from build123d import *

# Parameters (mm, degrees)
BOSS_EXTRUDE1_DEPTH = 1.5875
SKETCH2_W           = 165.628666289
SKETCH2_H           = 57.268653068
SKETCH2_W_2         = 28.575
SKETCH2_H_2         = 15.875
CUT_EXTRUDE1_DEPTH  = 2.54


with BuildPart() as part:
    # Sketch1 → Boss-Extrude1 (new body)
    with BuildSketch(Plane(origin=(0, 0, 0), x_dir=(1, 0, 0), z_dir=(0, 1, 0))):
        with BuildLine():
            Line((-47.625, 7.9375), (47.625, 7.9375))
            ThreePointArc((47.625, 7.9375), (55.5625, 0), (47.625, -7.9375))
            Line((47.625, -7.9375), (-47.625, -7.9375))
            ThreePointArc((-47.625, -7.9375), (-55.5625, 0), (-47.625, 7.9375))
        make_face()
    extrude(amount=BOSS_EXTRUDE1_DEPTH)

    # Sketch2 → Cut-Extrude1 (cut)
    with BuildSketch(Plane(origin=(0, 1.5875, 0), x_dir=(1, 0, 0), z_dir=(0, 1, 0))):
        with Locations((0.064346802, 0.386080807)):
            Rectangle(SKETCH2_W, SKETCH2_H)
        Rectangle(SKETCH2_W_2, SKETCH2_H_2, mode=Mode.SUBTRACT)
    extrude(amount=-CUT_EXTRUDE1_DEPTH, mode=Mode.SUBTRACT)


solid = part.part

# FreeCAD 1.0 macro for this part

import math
import FreeCAD as App
import Part
import Sketcher
Q = App.Units.Quantity


def add_polygon(sketch, points):
    """Adds a closed chain of lines whose ends are joined by coincident constraints."""
    first, n = sketch.GeometryCount, len(points)
    for a, b in zip(points, points[1:] + points[:1]):
        sketch.addGeometry(Part.LineSegment(App.Vector(*a, 0), App.Vector(*b, 0)), False)
    for i in range(n):
        sketch.addConstraint(Sketcher.Constraint("Coincident", first + i, 2, first + (i + 1) % n, 1))

doc = App.newDocument("Part")
body = doc.addObject("PartDesign::Body", "Body")

# Sketch on XZ plane
sketch1 = doc.addObject("Sketcher::SketchObject", "Sketch")
body.addObject(sketch1)
sketch1.AttachmentSupport = (doc.XZ_Plane, [""])
sketch1.MapMode = "FlatFace"
sketch1.addGeometry([
    Part.LineSegment(App.Vector(48, -8, 0), App.Vector(-48, -8, 0)),
    Part.ArcOfCircle(Part.Circle(App.Vector(-48, 0, 0), App.Vector(0, 0, 1), 8), math.radians(90), math.radians(270)),
    Part.LineSegment(App.Vector(-48, 8, 0), App.Vector(48, 8, 0)),
    Part.ArcOfCircle(Part.Circle(App.Vector(48, 0, 0), App.Vector(0, 0, 1), 8), math.radians(-90), math.radians(90)),
], False)
sketch1.addConstraint([
    Sketcher.Constraint("Tangent", 0, 2, 1, 2),
    Sketcher.Constraint("Tangent", 1, 1, 2, 1),
    Sketcher.Constraint("Tangent", 2, 2, 3, 2),
    Sketcher.Constraint("Tangent", 3, 1, 0, 1),
    Sketcher.Constraint("Horizontal", 0),
    Sketcher.Constraint("Horizontal", 2),
    Sketcher.Constraint("Symmetric", 1, 3, 3, 3, -1, 1),
    Sketcher.Constraint("Radius", 1, Q("0.3125 in")),
    Sketcher.Constraint("DistanceX", 0, 2, 0, 1, Q("3.75 in")),
])
pad1 = doc.addObject("PartDesign::Pad", "Pad")
body.addObject(pad1)
pad1.Profile = sketch1
pad1.Length = Q("0.0625 in")
pad1.Reversed = True

# Sketch on XZ plane
sketch2 = doc.addObject("Sketcher::SketchObject", "Sketch001")
body.addObject(sketch2)
sketch2.AttachmentSupport = (doc.XZ_Plane, [""])
sketch2.MapMode = "FlatFace"
sketch2.AttachmentOffset = App.Placement(App.Vector(0, 0, -0.0625 * 25.4), App.Rotation())
add_polygon(sketch2, [(-83, -29), (-83, 28), (83, 28), (83, -29)])  # lines 0-3
add_polygon(sketch2, [(14, 8), (-14, 8), (-14, -8), (14, -8)])  # lines 4-7
sketch2.addConstraint([
    Sketcher.Constraint("Vertical", 0),
    Sketcher.Constraint("Horizontal", 1),
    Sketcher.Constraint("Vertical", 2),
    Sketcher.Constraint("Horizontal", 3),
    Sketcher.Constraint("Horizontal", 4),
    Sketcher.Constraint("Vertical", 5),
    Sketcher.Constraint("Horizontal", 6),
    Sketcher.Constraint("Vertical", 7),
    Sketcher.Constraint("Symmetric", 4, 2, 6, 2, -1, 1),
    Sketcher.Constraint("DistanceX", 4, 2, 4, 1, Q("1.125 in")),
    Sketcher.Constraint("DistanceY", 5, 2, 5, 1, Q("0.625 in")),
    Sketcher.Constraint("DistanceX", 1, 1, 1, 2, 165.628666),
    Sketcher.Constraint("DistanceY", 0, 1, 0, 2, 57.268653),
    Sketcher.Constraint("DistanceX", -1, 1, 1, 2, 82.87868),
    Sketcher.Constraint("DistanceY", -1, 1, 0, 2, 28.248246),
])
pocket1 = doc.addObject("PartDesign::Pocket", "Pocket")
body.addObject(pocket1)
pocket1.Profile = sketch2
pocket1.Length = Q("0.1 in")
pocket1.Reversed = True

doc.recompute()
